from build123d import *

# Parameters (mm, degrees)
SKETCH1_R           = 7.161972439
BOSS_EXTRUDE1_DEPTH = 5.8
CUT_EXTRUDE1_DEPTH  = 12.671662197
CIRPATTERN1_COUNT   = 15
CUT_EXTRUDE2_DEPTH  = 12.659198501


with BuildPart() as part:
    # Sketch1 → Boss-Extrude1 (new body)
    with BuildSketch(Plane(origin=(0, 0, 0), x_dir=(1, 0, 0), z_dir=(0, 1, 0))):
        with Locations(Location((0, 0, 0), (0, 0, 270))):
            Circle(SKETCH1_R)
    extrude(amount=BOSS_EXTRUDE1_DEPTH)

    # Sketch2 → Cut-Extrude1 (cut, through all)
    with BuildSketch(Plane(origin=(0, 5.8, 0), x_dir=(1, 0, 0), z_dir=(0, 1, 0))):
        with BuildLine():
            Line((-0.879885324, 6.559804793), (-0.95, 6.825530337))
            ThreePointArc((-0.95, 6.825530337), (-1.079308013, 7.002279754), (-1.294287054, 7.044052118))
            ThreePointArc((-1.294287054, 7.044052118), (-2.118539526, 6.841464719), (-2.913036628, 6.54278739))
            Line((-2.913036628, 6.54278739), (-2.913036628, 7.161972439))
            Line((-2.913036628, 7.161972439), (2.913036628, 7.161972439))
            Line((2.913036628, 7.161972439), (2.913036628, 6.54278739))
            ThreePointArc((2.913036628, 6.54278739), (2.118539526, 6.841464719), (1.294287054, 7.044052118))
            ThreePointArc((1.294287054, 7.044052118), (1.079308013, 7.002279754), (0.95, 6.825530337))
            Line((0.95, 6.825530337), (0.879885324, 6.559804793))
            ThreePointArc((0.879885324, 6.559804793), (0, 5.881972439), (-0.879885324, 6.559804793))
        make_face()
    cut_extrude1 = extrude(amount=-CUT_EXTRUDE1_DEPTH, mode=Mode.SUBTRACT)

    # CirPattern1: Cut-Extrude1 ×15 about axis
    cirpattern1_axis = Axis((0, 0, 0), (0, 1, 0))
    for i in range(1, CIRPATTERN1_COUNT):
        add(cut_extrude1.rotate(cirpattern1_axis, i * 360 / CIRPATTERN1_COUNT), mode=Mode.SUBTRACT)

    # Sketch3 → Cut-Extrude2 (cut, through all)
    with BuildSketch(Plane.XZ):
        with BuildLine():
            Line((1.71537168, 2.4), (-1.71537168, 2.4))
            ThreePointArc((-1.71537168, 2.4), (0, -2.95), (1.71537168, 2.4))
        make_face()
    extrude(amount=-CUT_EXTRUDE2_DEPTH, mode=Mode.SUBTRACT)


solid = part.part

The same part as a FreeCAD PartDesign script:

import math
import FreeCAD as App
import Part
import Sketcher
from FreeCAD import Vector
Q = App.Units.Quantity

doc = App.newDocument("Part")
body = doc.addObject("PartDesign::Body", "Body")

# Sketch on XZ plane
sketch1 = body.newObject("Sketcher::SketchObject", "Sketch")
sketch1.AttachmentSupport = (doc.getObject("XZ_Plane"), [""])
sketch1.MapMode = "FlatFace"
sketch1.addGeometry(Part.Circle(Vector(0, 0, 0), Vector(0, 0, 1), 7), False)
sketch1.addConstraint([
    Sketcher.Constraint("Coincident", 0, 3, -1, 1),
    Sketcher.Constraint("Diameter", 0, Q("14.323945 mm")),
])
pad1 = body.newObject("PartDesign::Pad", "Pad")
pad1.Profile = sketch1
pad1.Length = 5.8
pad1.Reversed = True

# Sketch on XZ plane
sketch2 = body.newObject("Sketcher::SketchObject", "Sketch001")
sketch2.AttachmentSupport = (doc.getObject("XZ_Plane"), [""])
sketch2.MapMode = "FlatFace"
sketch2.AttachmentOffset = App.Placement(Vector(0, 0, -5.8), App.Rotation())
sketch2.addGeometry([
    Part.LineSegment(Vector(-0.95, -6.83, 0), Vector(-0.88, -6.56, 0)),  # 0
    Part.ArcOfCircle(Part.Circle(Vector(0, -6.79, 0), Vector(0, 0, 1), 0.91), math.radians(15), math.radians(165)),  # 1
    Part.LineSegment(Vector(0.88, -6.56, 0), Vector(0.95, -6.83, 0)),  # 2
    Part.ArcOfCircle(Part.Circle(Vector(1.24, -6.75, 0), Vector(0, 0, 1), 0.3), math.radians(-165), math.radians(-80)),  # 3
    Part.ArcOfCircle(Part.Circle(Vector(0, 0, 0), Vector(0, 0, 1), 7.16), math.radians(-79.59), math.radians(-66)),  # 4
    Part.LineSegment(Vector(2.91, -6.54, 0), Vector(2.91, -7.16, 0)),  # 5
    Part.LineSegment(Vector(2.91, -7.16, 0), Vector(-2.91, -7.16, 0)),  # 6
    Part.LineSegment(Vector(-2.91, -7.16, 0), Vector(-2.91, -6.54, 0)),  # 7
    Part.ArcOfCircle(Part.Circle(Vector(0, 0, 0), Vector(0, 0, 1), 7.16), math.radians(-114), math.radians(-100.41)),  # 8
    Part.ArcOfCircle(Part.Circle(Vector(-1.24, -6.75, 0), Vector(0, 0, 1), 0.3), math.radians(-100), math.radians(-15)),  # 9
], False)
sketch2.addConstraint([
    Sketcher.Constraint("Tangent", 0, 2, 1, 2),
    Sketcher.Constraint("Tangent", 1, 1, 2, 1),
    Sketcher.Constraint("Tangent", 2, 2, 3, 1),
    Sketcher.Constraint("Tangent", 3, 2, 4, 1),
    Sketcher.Constraint("Coincident", 4, 2, 5, 1),
    Sketcher.Constraint("Coincident", 5, 2, 6, 1),
    Sketcher.Constraint("Coincident", 6, 2, 7, 1),
    Sketcher.Constraint("Coincident", 7, 2, 8, 1),
    Sketcher.Constraint("Tangent", 8, 2, 9, 1),
    Sketcher.Constraint("Tangent", 9, 2, 0, 1),
    Sketcher.Constraint("Vertical", 5),
    Sketcher.Constraint("Horizontal", 6),
    Sketcher.Constraint("Vertical", 7),
    Sketcher.Constraint("Coincident", 4, 3, -1, 1),
    Sketcher.Constraint("Coincident", 8, 3, -1, 1),
    Sketcher.Constraint("Equal", 4, 8),
    Sketcher.Constraint("Equal", 3, 9),
    Sketcher.Constraint("Symmetric", 0, 2, 1, 1, -2),
    Sketcher.Constraint("Horizontal", 4, 2, 7, 2),
    Sketcher.Constraint("Radius", 3, Q("0.3 mm")),
    Sketcher.Constraint("Radius", 1, Q("0.91 mm")),
    Sketcher.Constraint("DistanceX", -1, 1, 2, 2, Q("0.95 mm")),
    Sketcher.Constraint("DistanceY", 6, 2, 1, 3, Q("0.37 mm")),
    Sketcher.Constraint("Radius", 4, Q("7.161972 mm")),
    Sketcher.Constraint("DistanceX", 1, 1, 3, 2, Q("0.414402 mm")),
    Sketcher.Constraint("DistanceX", 6, 2, 6, 1, Q("5.826073 mm")),
])
pocket1 = body.newObject("PartDesign::Pocket", "Pocket")
pocket1.Profile = sketch2
pocket1.Type = "ThroughAll"
pocket1.Reversed = True
doc.recompute()

polarpattern = body.newObject("PartDesign::PolarPattern", "PolarPattern")
polarpattern.Originals = [pocket1]
polarpattern.Axis = (doc.getObject("Y_Axis"), [""])
polarpattern.Angle = 360
polarpattern.Occurrences = 15
body.Tip = polarpattern

# Sketch on XZ plane
sketch3 = body.newObject("Sketcher::SketchObject", "Sketch002")
sketch3.AttachmentSupport = (doc.getObject("XZ_Plane"), [""])
sketch3.MapMode = "FlatFace"
sketch3.addGeometry([
    Part.LineSegment(Vector(1.7, 2.4, 0), Vector(-1.7, 2.4, 0)),
    Part.ArcOfCircle(Part.Circle(Vector(0, 0, 0), Vector(0, 0, 1), 3), math.radians(126), math.radians(414)),
], False)
sketch3.addConstraint([
    Sketcher.Constraint("Coincident", 0, 1, 1, 2),
    Sketcher.Constraint("Coincident", 1, 1, 0, 2),
    Sketcher.Constraint("Horizontal", 0),
    Sketcher.Constraint("Coincident", 1, 3, -1, 1),
    Sketcher.Constraint("Radius", 1, Q("2.95 mm")),
    Sketcher.Constraint("DistanceY", -1, 1, 0, 1, Q("2.4 mm")),
])
pocket2 = body.newObject("PartDesign::Pocket", "Pocket001")
pocket2.Profile = sketch3
pocket2.Type = "ThroughAll"

doc.recompute()
